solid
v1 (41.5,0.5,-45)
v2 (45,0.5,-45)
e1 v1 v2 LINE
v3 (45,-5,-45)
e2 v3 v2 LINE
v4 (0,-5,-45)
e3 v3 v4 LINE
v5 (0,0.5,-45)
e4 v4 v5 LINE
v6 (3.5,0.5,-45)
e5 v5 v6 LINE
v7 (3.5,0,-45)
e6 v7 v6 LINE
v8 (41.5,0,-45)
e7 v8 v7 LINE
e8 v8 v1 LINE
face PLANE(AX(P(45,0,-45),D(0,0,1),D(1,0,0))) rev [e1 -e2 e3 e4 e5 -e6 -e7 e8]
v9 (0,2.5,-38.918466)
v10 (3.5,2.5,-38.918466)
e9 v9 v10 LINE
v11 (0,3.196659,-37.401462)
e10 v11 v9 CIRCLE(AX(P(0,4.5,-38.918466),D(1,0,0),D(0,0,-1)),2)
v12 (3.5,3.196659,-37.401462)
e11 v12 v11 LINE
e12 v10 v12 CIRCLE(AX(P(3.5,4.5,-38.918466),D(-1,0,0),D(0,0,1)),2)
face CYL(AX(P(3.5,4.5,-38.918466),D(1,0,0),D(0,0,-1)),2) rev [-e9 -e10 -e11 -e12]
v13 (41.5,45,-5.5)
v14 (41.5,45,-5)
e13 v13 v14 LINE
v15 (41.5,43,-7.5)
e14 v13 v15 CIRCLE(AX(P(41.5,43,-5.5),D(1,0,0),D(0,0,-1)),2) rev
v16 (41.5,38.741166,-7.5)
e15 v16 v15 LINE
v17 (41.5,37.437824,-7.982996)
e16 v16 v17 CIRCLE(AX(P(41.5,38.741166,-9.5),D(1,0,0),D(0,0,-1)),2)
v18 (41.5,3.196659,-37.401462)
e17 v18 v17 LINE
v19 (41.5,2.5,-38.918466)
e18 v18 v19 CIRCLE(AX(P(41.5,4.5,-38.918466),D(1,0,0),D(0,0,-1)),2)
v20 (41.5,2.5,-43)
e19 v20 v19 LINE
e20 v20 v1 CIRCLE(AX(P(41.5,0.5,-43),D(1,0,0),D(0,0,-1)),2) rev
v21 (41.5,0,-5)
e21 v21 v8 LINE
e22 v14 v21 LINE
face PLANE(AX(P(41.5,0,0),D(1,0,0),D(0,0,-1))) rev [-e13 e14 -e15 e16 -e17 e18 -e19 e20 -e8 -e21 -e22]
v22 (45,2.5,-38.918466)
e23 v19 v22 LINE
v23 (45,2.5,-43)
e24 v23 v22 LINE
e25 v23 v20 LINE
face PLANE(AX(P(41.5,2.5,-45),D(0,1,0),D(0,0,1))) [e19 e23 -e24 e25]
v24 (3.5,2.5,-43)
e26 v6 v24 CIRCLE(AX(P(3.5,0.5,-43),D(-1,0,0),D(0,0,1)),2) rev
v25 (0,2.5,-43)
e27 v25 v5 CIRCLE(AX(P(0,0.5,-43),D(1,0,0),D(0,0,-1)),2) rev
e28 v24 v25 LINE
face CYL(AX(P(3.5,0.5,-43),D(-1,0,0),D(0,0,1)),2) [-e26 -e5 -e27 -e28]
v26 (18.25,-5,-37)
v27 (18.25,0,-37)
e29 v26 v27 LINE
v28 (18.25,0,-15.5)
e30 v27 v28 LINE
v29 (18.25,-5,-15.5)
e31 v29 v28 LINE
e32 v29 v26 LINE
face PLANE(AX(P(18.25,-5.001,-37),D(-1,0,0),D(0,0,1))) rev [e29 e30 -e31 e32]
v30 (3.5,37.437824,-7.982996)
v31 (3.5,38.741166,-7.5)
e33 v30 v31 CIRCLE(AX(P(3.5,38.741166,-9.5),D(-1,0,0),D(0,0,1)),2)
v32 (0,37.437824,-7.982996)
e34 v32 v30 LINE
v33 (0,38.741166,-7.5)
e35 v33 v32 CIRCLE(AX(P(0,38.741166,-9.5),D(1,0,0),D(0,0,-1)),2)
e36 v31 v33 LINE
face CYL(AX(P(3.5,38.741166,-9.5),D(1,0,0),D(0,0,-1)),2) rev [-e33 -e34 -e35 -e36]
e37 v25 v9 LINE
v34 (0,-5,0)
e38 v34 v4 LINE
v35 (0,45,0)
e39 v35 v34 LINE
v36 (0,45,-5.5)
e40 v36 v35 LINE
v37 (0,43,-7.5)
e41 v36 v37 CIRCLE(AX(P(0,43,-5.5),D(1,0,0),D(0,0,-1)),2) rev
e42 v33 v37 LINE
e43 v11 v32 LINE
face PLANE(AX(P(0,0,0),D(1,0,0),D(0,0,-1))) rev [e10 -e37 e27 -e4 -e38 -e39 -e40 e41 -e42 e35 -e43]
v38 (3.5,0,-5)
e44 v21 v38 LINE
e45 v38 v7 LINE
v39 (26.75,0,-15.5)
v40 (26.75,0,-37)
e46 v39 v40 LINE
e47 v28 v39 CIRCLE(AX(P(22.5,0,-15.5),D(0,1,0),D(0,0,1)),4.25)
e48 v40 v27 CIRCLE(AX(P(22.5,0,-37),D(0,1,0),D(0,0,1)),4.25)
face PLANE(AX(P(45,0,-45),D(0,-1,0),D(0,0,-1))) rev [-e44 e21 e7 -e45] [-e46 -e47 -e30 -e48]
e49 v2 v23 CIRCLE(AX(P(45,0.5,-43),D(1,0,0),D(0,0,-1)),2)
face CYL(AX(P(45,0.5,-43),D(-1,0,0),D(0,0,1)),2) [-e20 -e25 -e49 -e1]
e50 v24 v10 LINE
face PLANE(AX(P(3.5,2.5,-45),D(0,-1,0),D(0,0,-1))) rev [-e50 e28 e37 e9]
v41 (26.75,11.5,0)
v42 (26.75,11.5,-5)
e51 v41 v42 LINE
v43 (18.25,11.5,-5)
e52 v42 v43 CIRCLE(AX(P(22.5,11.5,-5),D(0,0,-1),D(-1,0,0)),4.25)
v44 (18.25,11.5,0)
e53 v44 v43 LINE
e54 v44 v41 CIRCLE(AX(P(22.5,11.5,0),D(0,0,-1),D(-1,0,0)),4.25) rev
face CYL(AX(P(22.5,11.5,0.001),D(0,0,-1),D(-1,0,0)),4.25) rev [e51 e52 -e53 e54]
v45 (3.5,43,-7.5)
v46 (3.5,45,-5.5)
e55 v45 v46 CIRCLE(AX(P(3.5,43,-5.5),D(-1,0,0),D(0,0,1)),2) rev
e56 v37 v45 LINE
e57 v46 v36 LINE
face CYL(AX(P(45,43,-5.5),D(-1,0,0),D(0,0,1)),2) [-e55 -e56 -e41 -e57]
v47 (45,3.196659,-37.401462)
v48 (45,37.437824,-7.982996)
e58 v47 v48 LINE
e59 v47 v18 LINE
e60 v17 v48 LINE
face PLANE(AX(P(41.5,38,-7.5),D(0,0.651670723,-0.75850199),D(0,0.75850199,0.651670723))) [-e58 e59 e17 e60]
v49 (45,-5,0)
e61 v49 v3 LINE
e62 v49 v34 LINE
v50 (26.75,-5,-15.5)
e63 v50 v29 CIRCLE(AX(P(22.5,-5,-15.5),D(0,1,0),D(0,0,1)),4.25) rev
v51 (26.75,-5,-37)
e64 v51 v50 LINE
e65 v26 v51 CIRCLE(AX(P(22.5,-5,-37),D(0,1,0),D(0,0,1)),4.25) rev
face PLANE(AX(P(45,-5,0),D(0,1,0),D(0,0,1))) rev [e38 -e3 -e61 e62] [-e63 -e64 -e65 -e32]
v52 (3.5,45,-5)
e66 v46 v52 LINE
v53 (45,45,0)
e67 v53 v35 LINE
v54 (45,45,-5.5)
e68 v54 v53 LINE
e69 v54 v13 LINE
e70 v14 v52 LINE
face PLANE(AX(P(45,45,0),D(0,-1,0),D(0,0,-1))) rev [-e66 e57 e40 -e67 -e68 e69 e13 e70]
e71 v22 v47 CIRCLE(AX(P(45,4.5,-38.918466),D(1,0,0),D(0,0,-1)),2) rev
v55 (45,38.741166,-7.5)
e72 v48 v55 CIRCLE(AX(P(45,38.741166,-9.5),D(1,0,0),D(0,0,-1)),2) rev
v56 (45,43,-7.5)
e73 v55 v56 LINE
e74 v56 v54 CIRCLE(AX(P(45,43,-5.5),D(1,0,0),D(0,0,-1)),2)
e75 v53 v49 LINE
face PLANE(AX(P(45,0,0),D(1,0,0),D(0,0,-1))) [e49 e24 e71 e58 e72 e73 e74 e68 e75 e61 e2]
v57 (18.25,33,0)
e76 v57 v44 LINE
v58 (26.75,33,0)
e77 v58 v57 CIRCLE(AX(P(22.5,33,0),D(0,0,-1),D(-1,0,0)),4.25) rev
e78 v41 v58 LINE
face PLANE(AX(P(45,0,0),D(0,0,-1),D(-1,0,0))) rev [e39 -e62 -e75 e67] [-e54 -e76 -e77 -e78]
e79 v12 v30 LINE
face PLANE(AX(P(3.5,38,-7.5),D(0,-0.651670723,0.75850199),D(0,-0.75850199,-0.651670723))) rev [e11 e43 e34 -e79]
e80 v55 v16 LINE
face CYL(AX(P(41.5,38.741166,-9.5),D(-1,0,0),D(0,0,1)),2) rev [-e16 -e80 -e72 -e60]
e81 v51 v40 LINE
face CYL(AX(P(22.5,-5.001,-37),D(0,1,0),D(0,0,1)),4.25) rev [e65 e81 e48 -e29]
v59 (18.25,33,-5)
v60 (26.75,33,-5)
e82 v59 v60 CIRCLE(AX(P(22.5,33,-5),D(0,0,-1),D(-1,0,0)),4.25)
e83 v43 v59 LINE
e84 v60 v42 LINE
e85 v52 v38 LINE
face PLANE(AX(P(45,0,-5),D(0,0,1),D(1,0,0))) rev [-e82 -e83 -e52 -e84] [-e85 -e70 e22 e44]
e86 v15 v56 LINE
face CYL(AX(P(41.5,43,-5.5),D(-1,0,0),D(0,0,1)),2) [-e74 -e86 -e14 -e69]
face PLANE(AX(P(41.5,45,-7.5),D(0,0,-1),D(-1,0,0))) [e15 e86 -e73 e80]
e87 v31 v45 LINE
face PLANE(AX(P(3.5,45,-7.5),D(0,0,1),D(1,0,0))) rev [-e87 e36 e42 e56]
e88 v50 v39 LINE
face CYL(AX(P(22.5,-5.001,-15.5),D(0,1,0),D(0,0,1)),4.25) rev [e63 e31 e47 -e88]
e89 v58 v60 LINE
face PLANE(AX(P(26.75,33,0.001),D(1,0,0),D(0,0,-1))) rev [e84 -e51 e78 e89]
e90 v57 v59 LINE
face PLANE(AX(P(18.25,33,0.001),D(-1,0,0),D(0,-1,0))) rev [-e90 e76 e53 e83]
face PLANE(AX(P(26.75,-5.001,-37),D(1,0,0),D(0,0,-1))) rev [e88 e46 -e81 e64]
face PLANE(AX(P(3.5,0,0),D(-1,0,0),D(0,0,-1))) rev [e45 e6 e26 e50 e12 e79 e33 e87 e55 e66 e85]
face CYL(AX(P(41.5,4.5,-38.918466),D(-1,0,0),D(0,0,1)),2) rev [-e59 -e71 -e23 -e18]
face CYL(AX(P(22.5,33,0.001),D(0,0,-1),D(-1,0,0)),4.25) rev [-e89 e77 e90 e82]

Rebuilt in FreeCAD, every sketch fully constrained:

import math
import FreeCAD as App
import Part
import Sketcher
Q = App.Units.Quantity


def edges_at(feature, points):
    """Names of the edges that pass closest to the given points."""
    edges = feature.Shape.Edges
    near = lambda p: min(range(len(edges)), key=lambda i: edges[i].distToShape(Part.Vertex(*p))[0])
    return sorted({f"Edge{near(p) + 1}" for p in points})


def add_polygon(sketch, points):
    """Adds a closed chain of lines whose ends are joined by coincident constraints."""
    first, n = sketch.GeometryCount, len(points)
    for a, b in zip(points, points[1:] + points[:1]):
        sketch.addGeometry(Part.LineSegment(App.Vector(*a, 0), App.Vector(*b, 0)), False)
    for i in range(n):
        sketch.addConstraint(Sketcher.Constraint("Coincident", first + i, 2, first + (i + 1) % n, 1))

doc = App.newDocument("Part")
body = doc.addObject("PartDesign::Body", "Body")

# Sketch on YZ plane
sketch1 = body.newObject("Sketcher::SketchObject", "Sketch")
sketch1.AttachmentSupport = (doc.getObject("YZ_Plane"), [""])
sketch1.MapMode = "FlatFace"
add_polygon(sketch1, [(45, 0), (-5, 0), (-5, -45), (0, -45), (0, -5), (45, -5)])  # lines 0-5
sketch1.addConstraint([
    Sketcher.Constraint("Horizontal", 0),
    Sketcher.Constraint("Vertical", 1),
    Sketcher.Constraint("Horizontal", 2),
    Sketcher.Constraint("Vertical", 3),
    Sketcher.Constraint("Horizontal", 4),
    Sketcher.Constraint("Vertical", 5),
    Sketcher.Constraint("PointOnObject", 0, 2, -1),
    Sketcher.Constraint("PointOnObject", 2, 2, -2),
    Sketcher.Constraint("Equal", 4, 1),
    Sketcher.Constraint("Equal", 2, 5),
    Sketcher.Constraint("DistanceX", 0, 2, 0, 1, Q("50 mm")),
    Sketcher.Constraint("DistanceX", 2, 1, 2, 2, Q("5 mm")),
])
pad1 = body.newObject("PartDesign::Pad", "Pad")
pad1.Profile = sketch1
pad1.Length = 45

# Sketch on YZ plane
sketch2 = body.newObject("Sketcher::SketchObject", "Sketch001")
sketch2.AttachmentSupport = (doc.getObject("YZ_Plane"), [""])
sketch2.MapMode = "FlatFace"
sketch2.AttachmentOffset = App.Placement(App.Vector(0, 0, 45), App.Rotation())
add_polygon(sketch2, [(0, -45), (2.5, -45), (2.5, -38), (38, -7.5), (45, -7.5), (45, -5), (0, -5)])  # lines 0-6
sketch2.addConstraint([
    Sketcher.Constraint("Horizontal", 0),
    Sketcher.Constraint("Vertical", 1),
    Sketcher.Constraint("Horizontal", 3),
    Sketcher.Constraint("Vertical", 4),
    Sketcher.Constraint("Horizontal", 5),
    Sketcher.Constraint("Vertical", 6),
    Sketcher.Constraint("PointOnObject", 5, 2, -2),
    Sketcher.Constraint("Equal", 3, 1),
    Sketcher.Constraint("Equal", 0, 4),
    Sketcher.Constraint("DistanceX", 3, 1, 3, 2, Q("7 mm")),
    Sketcher.Constraint("DistanceX", 5, 2, 5, 1, Q("45 mm")),
    Sketcher.Constraint("DistanceY", 6, 2, 6, 1, Q("40 mm")),
    Sketcher.Constraint("DistanceX", 0, 1, 0, 2, Q("2.5 mm")),
    Sketcher.Constraint("DistanceY", 0, 2, -1, 1, Q("45 mm")),
])
pad2 = body.newObject("PartDesign::Pad", "Pad001")
pad2.Profile = sketch2
pad2.Length = 3.5
pad2.Reversed = True
doc.recompute()

datumplane = body.newObject("PartDesign::Plane", "DatumPlane")
datumplane.AttachmentSupport = (doc.getObject("YZ_Plane"), [""])
datumplane.MapMode = "FlatFace"
datumplane.AttachmentOffset = App.Placement(App.Vector(0, 0, 22.5), App.Rotation())
mirrored = body.newObject("PartDesign::Mirrored", "Mirrored")
mirrored.Originals = [pad2]
mirrored.MirrorPlane = (datumplane, [""])
body.Tip = mirrored

# Sketch on XY plane
sketch3 = body.newObject("Sketcher::SketchObject", "Sketch002")
sketch3.AttachmentSupport = (doc.getObject("XY_Plane"), [""])
sketch3.MapMode = "FlatFace"
sketch3.AttachmentOffset = App.Placement(App.Vector(0, 0, -5), App.Rotation())
sketch3.addGeometry([
    Part.LineSegment(App.Vector(18.25, 11.5, 0), App.Vector(18.25, 33, 0)),
    Part.ArcOfCircle(Part.Circle(App.Vector(22.5, 33, 0), App.Vector(0, 0, 1), 4.25), math.radians(0), math.radians(180)),
    Part.LineSegment(App.Vector(26.75, 33, 0), App.Vector(26.75, 11.5, 0)),
    Part.ArcOfCircle(Part.Circle(App.Vector(22.5, 11.5, 0), App.Vector(0, 0, 1), 4.25), math.radians(180), math.radians(360)),
], False)
sketch3.addConstraint([
    Sketcher.Constraint("Tangent", 0, 2, 1, 2),
    Sketcher.Constraint("Tangent", 1, 1, 2, 1),
    Sketcher.Constraint("Tangent", 2, 2, 3, 2),
    Sketcher.Constraint("Tangent", 3, 1, 0, 1),
    Sketcher.Constraint("Vertical", 0),
    Sketcher.Constraint("Vertical", 2),
    Sketcher.Constraint("Radius", 1, Q("4.25 mm")),
    Sketcher.Constraint("DistanceY", 0, 1, 0, 2, Q("21.5 mm")),
    Sketcher.Constraint("DistanceY", -1, 1, 1, 3, Q("33 mm")),
    Sketcher.Constraint("DistanceX", -1, 1, 1, 3, Q("22.5 mm")),
])
pocket1 = body.newObject("PartDesign::Pocket", "Pocket")
pocket1.Profile = sketch3
pocket1.Type = "UpToFirst"
pocket1.Reversed = True

# Sketch on XZ plane
sketch4 = body.newObject("Sketcher::SketchObject", "Sketch003")
sketch4.AttachmentSupport = (doc.getObject("XZ_Plane"), [""])
sketch4.MapMode = "FlatFace"
sketch4.addGeometry([
    Part.LineSegment(App.Vector(26.75, -15.5, 0), App.Vector(26.75, -37, 0)),
    Part.ArcOfCircle(Part.Circle(App.Vector(22.5, -37, 0), App.Vector(0, 0, 1), 4.25), math.radians(180), math.radians(360)),
    Part.LineSegment(App.Vector(18.25, -37, 0), App.Vector(18.25, -15.5, 0)),
    Part.ArcOfCircle(Part.Circle(App.Vector(22.5, -15.5, 0), App.Vector(0, 0, 1), 4.25), math.radians(0), math.radians(180)),
], False)
sketch4.addConstraint([
    Sketcher.Constraint("Tangent", 0, 2, 1, 2),
    Sketcher.Constraint("Tangent", 1, 1, 2, 1),
    Sketcher.Constraint("Tangent", 2, 2, 3, 2),
    Sketcher.Constraint("Tangent", 3, 1, 0, 1),
    Sketcher.Constraint("Vertical", 0),
    Sketcher.Constraint("Vertical", 2),
    Sketcher.Constraint("Radius", 1, Q("4.25 mm")),
    Sketcher.Constraint("DistanceY", 0, 2, 0, 1, Q("21.5 mm")),
    Sketcher.Constraint("DistanceY", 1, 3, -1, 1, Q("37 mm")),
    Sketcher.Constraint("DistanceX", -1, 1, 1, 3, Q("22.5 mm")),
])
pocket2 = body.newObject("PartDesign::Pocket", "Pocket001")
pocket2.Profile = sketch4
pocket2.Type = "UpToFirst"
pocket2.Reversed = True
doc.recompute()

fillet = body.newObject("PartDesign::Fillet", "Fillet")
fillet.Base = (pocket2, edges_at(pocket2, [
    (43.25, 45, -7.5),
    (43.25, 38, -7.5),
    (43.25, 2.5, -38),
    (43.25, 2.5, -45),
    (1.75, 2.5, -45),
    (1.75, 2.5, -38),
    (1.75, 38, -7.5),
    (1.75, 45, -7.5),
]))
fillet.Radius = 2

doc.recompute()
